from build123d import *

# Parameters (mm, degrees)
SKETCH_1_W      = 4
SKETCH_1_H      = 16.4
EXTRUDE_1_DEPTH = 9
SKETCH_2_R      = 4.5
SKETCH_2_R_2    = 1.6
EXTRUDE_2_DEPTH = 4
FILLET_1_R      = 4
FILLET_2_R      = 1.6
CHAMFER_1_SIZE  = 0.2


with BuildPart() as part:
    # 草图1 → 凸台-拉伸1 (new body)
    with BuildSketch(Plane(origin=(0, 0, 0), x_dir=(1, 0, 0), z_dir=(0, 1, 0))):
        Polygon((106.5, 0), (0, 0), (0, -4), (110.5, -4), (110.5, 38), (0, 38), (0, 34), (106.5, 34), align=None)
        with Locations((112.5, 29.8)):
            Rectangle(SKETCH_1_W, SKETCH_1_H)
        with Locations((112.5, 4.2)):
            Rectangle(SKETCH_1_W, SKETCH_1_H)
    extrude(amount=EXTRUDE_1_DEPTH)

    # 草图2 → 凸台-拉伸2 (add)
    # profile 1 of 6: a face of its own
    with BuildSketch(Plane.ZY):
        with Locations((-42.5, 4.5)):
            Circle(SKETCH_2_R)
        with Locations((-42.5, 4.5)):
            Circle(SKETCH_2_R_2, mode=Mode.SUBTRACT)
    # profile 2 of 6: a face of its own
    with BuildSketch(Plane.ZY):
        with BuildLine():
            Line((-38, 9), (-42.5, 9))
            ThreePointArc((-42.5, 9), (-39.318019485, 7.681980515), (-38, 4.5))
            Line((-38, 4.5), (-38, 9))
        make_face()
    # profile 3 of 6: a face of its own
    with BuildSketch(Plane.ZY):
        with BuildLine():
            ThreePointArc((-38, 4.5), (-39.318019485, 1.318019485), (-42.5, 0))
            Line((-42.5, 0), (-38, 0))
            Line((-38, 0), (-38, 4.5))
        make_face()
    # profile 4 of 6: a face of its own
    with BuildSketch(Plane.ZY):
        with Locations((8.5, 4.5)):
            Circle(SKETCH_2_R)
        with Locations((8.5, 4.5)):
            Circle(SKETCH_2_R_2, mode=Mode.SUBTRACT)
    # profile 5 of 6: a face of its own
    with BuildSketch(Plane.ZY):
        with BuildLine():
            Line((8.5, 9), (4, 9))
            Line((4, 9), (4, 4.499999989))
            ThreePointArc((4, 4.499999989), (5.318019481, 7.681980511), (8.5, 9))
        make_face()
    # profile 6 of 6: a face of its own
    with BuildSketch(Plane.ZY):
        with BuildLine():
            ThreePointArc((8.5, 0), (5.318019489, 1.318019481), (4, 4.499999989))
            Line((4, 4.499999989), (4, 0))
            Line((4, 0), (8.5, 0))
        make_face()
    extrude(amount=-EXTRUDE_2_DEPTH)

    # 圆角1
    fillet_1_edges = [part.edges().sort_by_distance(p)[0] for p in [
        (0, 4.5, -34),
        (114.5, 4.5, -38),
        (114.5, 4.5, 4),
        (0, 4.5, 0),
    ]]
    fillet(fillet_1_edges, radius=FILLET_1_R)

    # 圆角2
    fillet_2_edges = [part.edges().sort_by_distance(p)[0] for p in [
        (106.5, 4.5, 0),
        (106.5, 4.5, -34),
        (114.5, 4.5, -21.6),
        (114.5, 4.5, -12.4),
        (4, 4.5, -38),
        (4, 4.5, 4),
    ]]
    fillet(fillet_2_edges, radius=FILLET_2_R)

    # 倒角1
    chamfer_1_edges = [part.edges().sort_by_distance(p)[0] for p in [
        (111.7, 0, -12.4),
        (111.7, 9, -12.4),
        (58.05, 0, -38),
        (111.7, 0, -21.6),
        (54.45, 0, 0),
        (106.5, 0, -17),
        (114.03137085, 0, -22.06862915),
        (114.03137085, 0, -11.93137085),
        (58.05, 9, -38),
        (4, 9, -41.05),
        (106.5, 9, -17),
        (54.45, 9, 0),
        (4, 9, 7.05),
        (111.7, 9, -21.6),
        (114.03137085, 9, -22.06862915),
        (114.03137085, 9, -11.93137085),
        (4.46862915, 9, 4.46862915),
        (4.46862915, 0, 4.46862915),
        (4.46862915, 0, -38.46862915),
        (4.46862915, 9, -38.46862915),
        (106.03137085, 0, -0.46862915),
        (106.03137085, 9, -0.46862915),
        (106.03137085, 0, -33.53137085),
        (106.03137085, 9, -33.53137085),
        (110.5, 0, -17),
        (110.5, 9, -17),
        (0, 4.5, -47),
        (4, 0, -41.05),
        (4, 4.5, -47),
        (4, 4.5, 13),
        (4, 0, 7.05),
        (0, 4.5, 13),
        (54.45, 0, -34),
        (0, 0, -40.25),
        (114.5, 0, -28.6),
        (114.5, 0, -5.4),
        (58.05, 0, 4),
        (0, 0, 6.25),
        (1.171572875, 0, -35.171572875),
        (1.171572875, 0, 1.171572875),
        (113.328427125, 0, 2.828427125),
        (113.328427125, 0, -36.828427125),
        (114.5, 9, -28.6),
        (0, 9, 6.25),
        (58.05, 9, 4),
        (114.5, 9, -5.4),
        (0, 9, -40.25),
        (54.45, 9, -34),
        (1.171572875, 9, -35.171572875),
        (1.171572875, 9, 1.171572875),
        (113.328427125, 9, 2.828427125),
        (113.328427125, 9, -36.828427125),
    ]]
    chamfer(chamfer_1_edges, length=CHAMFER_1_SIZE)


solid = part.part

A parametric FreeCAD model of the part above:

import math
import FreeCAD as App
import Part
import Sketcher

V = App.Vector


def edges_at(feature, points):
    """Names of the edges that pass closest to the given points."""
    edges = feature.Shape.Edges
    near = lambda p: min(range(len(edges)), key=lambda i: edges[i].distToShape(Part.Vertex(*p))[0])
    return sorted({f"Edge{near(p) + 1}" for p in points})

doc = App.newDocument("Part")
body = doc.addObject("PartDesign::Body", "Body")

# Sketch on XZ plane
sketch1 = body.newObject("Sketcher::SketchObject", "Sketch")
sketch1.AttachmentSupport = (doc.getObject("XZ_Plane"), [""])
sketch1.MapMode = "FlatFace"
sketch1.addGeometry(Part.LineSegment(V(106.5, 0, 0), V(0, 0, 0)), False)
sketch1.addGeometry(Part.LineSegment(V(0, 0, 0), V(0, 4, 0)), False)
sketch1.addGeometry(Part.LineSegment(V(0, 4, 0), V(114.5, 4, 0)), False)
sketch1.addGeometry(Part.LineSegment(V(114.5, 4, 0), V(114.5, -12.4, 0)), False)
sketch1.addGeometry(Part.LineSegment(V(114.5, -12.4, 0), V(110.5, -12.4, 0)), False)
sketch1.addGeometry(Part.LineSegment(V(110.5, -12.4, 0), V(110.5, -21.6, 0)), False)
sketch1.addGeometry(Part.LineSegment(V(110.5, -21.6, 0), V(114.5, -21.6, 0)), False)
sketch1.addGeometry(Part.LineSegment(V(114.5, -21.6, 0), V(114.5, -38, 0)), False)
sketch1.addGeometry(Part.LineSegment(V(114.5, -38, 0), V(0, -38, 0)), False)
sketch1.addGeometry(Part.LineSegment(V(0, -38, 0), V(0, -34, 0)), False)
sketch1.addGeometry(Part.LineSegment(V(0, -34, 0), V(106.5, -34, 0)), False)
sketch1.addGeometry(Part.LineSegment(V(106.5, -34, 0), V(106.5, 0, 0)), False)
sketch1.addConstraint(Sketcher.Constraint("Coincident", 0, 2, 1, 1))
sketch1.addConstraint(Sketcher.Constraint("Coincident", 1, 2, 2, 1))
sketch1.addConstraint(Sketcher.Constraint("Coincident", 2, 2, 3, 1))
sketch1.addConstraint(Sketcher.Constraint("Coincident", 3, 2, 4, 1))
sketch1.addConstraint(Sketcher.Constraint("Coincident", 4, 2, 5, 1))
sketch1.addConstraint(Sketcher.Constraint("Coincident", 5, 2, 6, 1))
sketch1.addConstraint(Sketcher.Constraint("Coincident", 6, 2, 7, 1))
sketch1.addConstraint(Sketcher.Constraint("Coincident", 7, 2, 8, 1))
sketch1.addConstraint(Sketcher.Constraint("Coincident", 8, 2, 9, 1))
sketch1.addConstraint(Sketcher.Constraint("Coincident", 9, 2, 10, 1))
sketch1.addConstraint(Sketcher.Constraint("Coincident", 10, 2, 11, 1))
sketch1.addConstraint(Sketcher.Constraint("Coincident", 11, 2, 0, 1))
sketch1.addConstraint(Sketcher.Constraint("Horizontal", 0))
sketch1.addConstraint(Sketcher.Constraint("Vertical", 1))
sketch1.addConstraint(Sketcher.Constraint("Horizontal", 2))
sketch1.addConstraint(Sketcher.Constraint("Vertical", 3))
sketch1.addConstraint(Sketcher.Constraint("Horizontal", 4))
sketch1.addConstraint(Sketcher.Constraint("Vertical", 5))
sketch1.addConstraint(Sketcher.Constraint("Horizontal", 6))
sketch1.addConstraint(Sketcher.Constraint("Vertical", 7))
sketch1.addConstraint(Sketcher.Constraint("Horizontal", 8))
sketch1.addConstraint(Sketcher.Constraint("Vertical", 9))
sketch1.addConstraint(Sketcher.Constraint("Horizontal", 10))
sketch1.addConstraint(Sketcher.Constraint("Vertical", 11))
sketch1.addConstraint(Sketcher.Constraint("Coincident", 0, 2, -1, 1))
sketch1.addConstraint(Sketcher.Constraint("PointOnObject", 8, 2, -2))
sketch1.addConstraint(Sketcher.Constraint("Vertical", 3, 2, 6, 2))
sketch1.addConstraint(Sketcher.Constraint("Equal", 6, 1))
sketch1.addConstraint(Sketcher.Constraint("Equal", 3, 7))
sketch1.addConstraint(Sketcher.Constraint("Equal", 1, 9))
sketch1.addConstraint(Sketcher.Constraint("DistanceX", 4, 2, 4, 1, 4.0))
sketch1.addConstraint(Sketcher.Constraint("DistanceY", 11, 1, 11, 2, 34.0))
sketch1.addConstraint(Sketcher.Constraint("DistanceX", 0, 2, 0, 1, 106.5))
sketch1.addConstraint(Sketcher.Constraint("DistanceX", 2, 1, 2, 2, 114.5))
sketch1.addConstraint(Sketcher.Constraint("DistanceY", 3, 2, 3, 1, 16.4))
pad1 = body.newObject("PartDesign::Pad", "Pad")
pad1.Profile = sketch1
pad1.Length = 9
pad1.Reversed = True

# Sketch on YZ plane
sketch2 = body.newObject("Sketcher::SketchObject", "Sketch001")
sketch2.AttachmentSupport = (doc.getObject("YZ_Plane"), [""])
sketch2.MapMode = "FlatFace"
sketch2.addGeometry(Part.ArcOfCircle(Part.Circle(V(4.5, -42.5, 0), V(0, 0, 1), 4.5), math.radians(180), math.radians(360)), False)
sketch2.addGeometry(Part.LineSegment(V(0, -42.5, 0), V(0, -38, 0)), False)
sketch2.addGeometry(Part.LineSegment(V(0, -38, 0), V(9, -38, 0)), False)
sketch2.addGeometry(Part.LineSegment(V(9, -38, 0), V(9, -42.5, 0)), False)
sketch2.addGeometry(Part.Circle(V(4.5, -42.5, 0), V(0, 0, 1), 1.6), False)
sketch2.addGeometry(Part.LineSegment(V(9, 8.5, 0), V(9, 4, 0)), False)
sketch2.addGeometry(Part.LineSegment(V(9, 4, 0), V(0, 4, 0)), False)
sketch2.addGeometry(Part.LineSegment(V(0, 4, 0), V(0, 8.5, 0)), False)
sketch2.addGeometry(Part.ArcOfCircle(Part.Circle(V(4.5, 8.5, 0), V(0, 0, 1), 4.5), math.radians(0), math.radians(180)), False)
sketch2.addGeometry(Part.Circle(V(4.5, 8.5, 0), V(0, 0, 1), 1.6), False)
sketch2.addConstraint(Sketcher.Constraint("Tangent", 0, 1, 1, 1))
sketch2.addConstraint(Sketcher.Constraint("Coincident", 1, 2, 2, 1))
sketch2.addConstraint(Sketcher.Constraint("Coincident", 2, 2, 3, 1))
sketch2.addConstraint(Sketcher.Constraint("Tangent", 3, 2, 0, 2))
sketch2.addConstraint(Sketcher.Constraint("Coincident", 5, 2, 6, 1))
sketch2.addConstraint(Sketcher.Constraint("Coincident", 6, 2, 7, 1))
sketch2.addConstraint(Sketcher.Constraint("Tangent", 7, 2, 8, 2))
sketch2.addConstraint(Sketcher.Constraint("Tangent", 8, 1, 5, 1))
sketch2.addConstraint(Sketcher.Constraint("Vertical", 1))
sketch2.addConstraint(Sketcher.Constraint("Horizontal", 2))
sketch2.addConstraint(Sketcher.Constraint("Vertical", 3))
sketch2.addConstraint(Sketcher.Constraint("Vertical", 5))
sketch2.addConstraint(Sketcher.Constraint("Horizontal", 6))
sketch2.addConstraint(Sketcher.Constraint("Vertical", 7))
sketch2.addConstraint(Sketcher.Constraint("Coincident", 4, 3, 0, 3))
sketch2.addConstraint(Sketcher.Constraint("Coincident", 9, 3, 8, 3))
sketch2.addConstraint(Sketcher.Constraint("Equal", 0, 8))
sketch2.addConstraint(Sketcher.Constraint("Equal", 4, 9))
sketch2.addConstraint(Sketcher.Constraint("PointOnObject", 0, 1, -2))
sketch2.addConstraint(Sketcher.Constraint("PointOnObject", 6, 2, -2))
sketch2.addConstraint(Sketcher.Constraint("Equal", 3, 5))
sketch2.addConstraint(Sketcher.Constraint("Diameter", 4, 3.2))
sketch2.addConstraint(Sketcher.Constraint("Radius", 0, 4.5))
sketch2.addConstraint(Sketcher.Constraint("DistanceY", 1, 1, 1, 2, 4.5))
sketch2.addConstraint(Sketcher.Constraint("DistanceY", 1, 2, -1, 1, 38.0))
sketch2.addConstraint(Sketcher.Constraint("DistanceY", -1, 1, 5, 2, 4.0))
pad2 = body.newObject("PartDesign::Pad", "Pad001")
pad2.Profile = sketch2
pad2.Length = 4
doc.recompute()

fillet = body.newObject("PartDesign::Fillet", "Fillet")
fillet.Base = (pad2, edges_at(pad2, [
    (0, 4.5, -34),
    (114.5, 4.5, -38),
    (114.5, 4.5, 4),
    (0, 4.5, 0),
]))
fillet.Radius = 4
doc.recompute()

fillet2 = body.newObject("PartDesign::Fillet", "Fillet001")
fillet2.Base = (fillet, edges_at(fillet, [
    (106.5, 4.5, 0),
    (106.5, 4.5, -34),
    (114.5, 4.5, -21.6),
    (114.5, 4.5, -12.4),
    (4, 4.5, -38),
    (4, 4.5, 4),
]))
fillet2.Radius = 1.6
doc.recompute()

chamfer = body.newObject("PartDesign::Chamfer", "Chamfer")
chamfer.Base = (fillet2, edges_at(fillet2, [
    (111.7, 0, -12.4),
    (111.7, 9, -12.4),
    (58.05, 0, -38),
    (111.7, 0, -21.6),
    (54.45, 0, 0),
    (106.5, 0, -17),
    (114.031, 0, -22.069),
    (114.031, 0, -11.931),
    (58.05, 9, -38),
    (4, 9, -41.05),
    (106.5, 9, -17),
    (54.45, 9, 0),
    (4, 9, 7.05),
    (111.7, 9, -21.6),
    (114.031, 9, -22.069),
    (114.031, 9, -11.931),
    (4.469, 9, 4.469),
    (4.469, 0, 4.469),
    (4.469, 0, -38.469),
    (4.469, 9, -38.469),
    (106.031, 0, -0.469),
    (106.031, 9, -0.469),
    (106.031, 0, -33.531),
    (106.031, 9, -33.531),
    (110.5, 0, -17),
    (110.5, 9, -17),
    (0, 4.5, -47),
    (4, 0, -41.05),
    (4, 4.5, -47),
    (4, 4.5, 13),
    (4, 0, 7.05),
    (0, 4.5, 13),
    (54.45, 0, -34),
    (0, 0, -40.25),
    (114.5, 0, -28.6),
    (114.5, 0, -5.4),
    (58.05, 0, 4),
    (0, 0, 6.25),
    (1.172, 0, -35.172),
    (1.172, 0, 1.172),
    (113.328, 0, 2.828),
    (113.328, 0, -36.828),
    (114.5, 9, -28.6),
    (0, 9, 6.25),
    (58.05, 9, 4),
    (114.5, 9, -5.4),
    (0, 9, -40.25),
    (54.45, 9, -34),
    (1.172, 9, -35.172),
    (1.172, 9, 1.172),
    (113.328, 9, 2.828),
    (113.328, 9, -36.828),
]))
chamfer.Size = 0.2

doc.recompute()
